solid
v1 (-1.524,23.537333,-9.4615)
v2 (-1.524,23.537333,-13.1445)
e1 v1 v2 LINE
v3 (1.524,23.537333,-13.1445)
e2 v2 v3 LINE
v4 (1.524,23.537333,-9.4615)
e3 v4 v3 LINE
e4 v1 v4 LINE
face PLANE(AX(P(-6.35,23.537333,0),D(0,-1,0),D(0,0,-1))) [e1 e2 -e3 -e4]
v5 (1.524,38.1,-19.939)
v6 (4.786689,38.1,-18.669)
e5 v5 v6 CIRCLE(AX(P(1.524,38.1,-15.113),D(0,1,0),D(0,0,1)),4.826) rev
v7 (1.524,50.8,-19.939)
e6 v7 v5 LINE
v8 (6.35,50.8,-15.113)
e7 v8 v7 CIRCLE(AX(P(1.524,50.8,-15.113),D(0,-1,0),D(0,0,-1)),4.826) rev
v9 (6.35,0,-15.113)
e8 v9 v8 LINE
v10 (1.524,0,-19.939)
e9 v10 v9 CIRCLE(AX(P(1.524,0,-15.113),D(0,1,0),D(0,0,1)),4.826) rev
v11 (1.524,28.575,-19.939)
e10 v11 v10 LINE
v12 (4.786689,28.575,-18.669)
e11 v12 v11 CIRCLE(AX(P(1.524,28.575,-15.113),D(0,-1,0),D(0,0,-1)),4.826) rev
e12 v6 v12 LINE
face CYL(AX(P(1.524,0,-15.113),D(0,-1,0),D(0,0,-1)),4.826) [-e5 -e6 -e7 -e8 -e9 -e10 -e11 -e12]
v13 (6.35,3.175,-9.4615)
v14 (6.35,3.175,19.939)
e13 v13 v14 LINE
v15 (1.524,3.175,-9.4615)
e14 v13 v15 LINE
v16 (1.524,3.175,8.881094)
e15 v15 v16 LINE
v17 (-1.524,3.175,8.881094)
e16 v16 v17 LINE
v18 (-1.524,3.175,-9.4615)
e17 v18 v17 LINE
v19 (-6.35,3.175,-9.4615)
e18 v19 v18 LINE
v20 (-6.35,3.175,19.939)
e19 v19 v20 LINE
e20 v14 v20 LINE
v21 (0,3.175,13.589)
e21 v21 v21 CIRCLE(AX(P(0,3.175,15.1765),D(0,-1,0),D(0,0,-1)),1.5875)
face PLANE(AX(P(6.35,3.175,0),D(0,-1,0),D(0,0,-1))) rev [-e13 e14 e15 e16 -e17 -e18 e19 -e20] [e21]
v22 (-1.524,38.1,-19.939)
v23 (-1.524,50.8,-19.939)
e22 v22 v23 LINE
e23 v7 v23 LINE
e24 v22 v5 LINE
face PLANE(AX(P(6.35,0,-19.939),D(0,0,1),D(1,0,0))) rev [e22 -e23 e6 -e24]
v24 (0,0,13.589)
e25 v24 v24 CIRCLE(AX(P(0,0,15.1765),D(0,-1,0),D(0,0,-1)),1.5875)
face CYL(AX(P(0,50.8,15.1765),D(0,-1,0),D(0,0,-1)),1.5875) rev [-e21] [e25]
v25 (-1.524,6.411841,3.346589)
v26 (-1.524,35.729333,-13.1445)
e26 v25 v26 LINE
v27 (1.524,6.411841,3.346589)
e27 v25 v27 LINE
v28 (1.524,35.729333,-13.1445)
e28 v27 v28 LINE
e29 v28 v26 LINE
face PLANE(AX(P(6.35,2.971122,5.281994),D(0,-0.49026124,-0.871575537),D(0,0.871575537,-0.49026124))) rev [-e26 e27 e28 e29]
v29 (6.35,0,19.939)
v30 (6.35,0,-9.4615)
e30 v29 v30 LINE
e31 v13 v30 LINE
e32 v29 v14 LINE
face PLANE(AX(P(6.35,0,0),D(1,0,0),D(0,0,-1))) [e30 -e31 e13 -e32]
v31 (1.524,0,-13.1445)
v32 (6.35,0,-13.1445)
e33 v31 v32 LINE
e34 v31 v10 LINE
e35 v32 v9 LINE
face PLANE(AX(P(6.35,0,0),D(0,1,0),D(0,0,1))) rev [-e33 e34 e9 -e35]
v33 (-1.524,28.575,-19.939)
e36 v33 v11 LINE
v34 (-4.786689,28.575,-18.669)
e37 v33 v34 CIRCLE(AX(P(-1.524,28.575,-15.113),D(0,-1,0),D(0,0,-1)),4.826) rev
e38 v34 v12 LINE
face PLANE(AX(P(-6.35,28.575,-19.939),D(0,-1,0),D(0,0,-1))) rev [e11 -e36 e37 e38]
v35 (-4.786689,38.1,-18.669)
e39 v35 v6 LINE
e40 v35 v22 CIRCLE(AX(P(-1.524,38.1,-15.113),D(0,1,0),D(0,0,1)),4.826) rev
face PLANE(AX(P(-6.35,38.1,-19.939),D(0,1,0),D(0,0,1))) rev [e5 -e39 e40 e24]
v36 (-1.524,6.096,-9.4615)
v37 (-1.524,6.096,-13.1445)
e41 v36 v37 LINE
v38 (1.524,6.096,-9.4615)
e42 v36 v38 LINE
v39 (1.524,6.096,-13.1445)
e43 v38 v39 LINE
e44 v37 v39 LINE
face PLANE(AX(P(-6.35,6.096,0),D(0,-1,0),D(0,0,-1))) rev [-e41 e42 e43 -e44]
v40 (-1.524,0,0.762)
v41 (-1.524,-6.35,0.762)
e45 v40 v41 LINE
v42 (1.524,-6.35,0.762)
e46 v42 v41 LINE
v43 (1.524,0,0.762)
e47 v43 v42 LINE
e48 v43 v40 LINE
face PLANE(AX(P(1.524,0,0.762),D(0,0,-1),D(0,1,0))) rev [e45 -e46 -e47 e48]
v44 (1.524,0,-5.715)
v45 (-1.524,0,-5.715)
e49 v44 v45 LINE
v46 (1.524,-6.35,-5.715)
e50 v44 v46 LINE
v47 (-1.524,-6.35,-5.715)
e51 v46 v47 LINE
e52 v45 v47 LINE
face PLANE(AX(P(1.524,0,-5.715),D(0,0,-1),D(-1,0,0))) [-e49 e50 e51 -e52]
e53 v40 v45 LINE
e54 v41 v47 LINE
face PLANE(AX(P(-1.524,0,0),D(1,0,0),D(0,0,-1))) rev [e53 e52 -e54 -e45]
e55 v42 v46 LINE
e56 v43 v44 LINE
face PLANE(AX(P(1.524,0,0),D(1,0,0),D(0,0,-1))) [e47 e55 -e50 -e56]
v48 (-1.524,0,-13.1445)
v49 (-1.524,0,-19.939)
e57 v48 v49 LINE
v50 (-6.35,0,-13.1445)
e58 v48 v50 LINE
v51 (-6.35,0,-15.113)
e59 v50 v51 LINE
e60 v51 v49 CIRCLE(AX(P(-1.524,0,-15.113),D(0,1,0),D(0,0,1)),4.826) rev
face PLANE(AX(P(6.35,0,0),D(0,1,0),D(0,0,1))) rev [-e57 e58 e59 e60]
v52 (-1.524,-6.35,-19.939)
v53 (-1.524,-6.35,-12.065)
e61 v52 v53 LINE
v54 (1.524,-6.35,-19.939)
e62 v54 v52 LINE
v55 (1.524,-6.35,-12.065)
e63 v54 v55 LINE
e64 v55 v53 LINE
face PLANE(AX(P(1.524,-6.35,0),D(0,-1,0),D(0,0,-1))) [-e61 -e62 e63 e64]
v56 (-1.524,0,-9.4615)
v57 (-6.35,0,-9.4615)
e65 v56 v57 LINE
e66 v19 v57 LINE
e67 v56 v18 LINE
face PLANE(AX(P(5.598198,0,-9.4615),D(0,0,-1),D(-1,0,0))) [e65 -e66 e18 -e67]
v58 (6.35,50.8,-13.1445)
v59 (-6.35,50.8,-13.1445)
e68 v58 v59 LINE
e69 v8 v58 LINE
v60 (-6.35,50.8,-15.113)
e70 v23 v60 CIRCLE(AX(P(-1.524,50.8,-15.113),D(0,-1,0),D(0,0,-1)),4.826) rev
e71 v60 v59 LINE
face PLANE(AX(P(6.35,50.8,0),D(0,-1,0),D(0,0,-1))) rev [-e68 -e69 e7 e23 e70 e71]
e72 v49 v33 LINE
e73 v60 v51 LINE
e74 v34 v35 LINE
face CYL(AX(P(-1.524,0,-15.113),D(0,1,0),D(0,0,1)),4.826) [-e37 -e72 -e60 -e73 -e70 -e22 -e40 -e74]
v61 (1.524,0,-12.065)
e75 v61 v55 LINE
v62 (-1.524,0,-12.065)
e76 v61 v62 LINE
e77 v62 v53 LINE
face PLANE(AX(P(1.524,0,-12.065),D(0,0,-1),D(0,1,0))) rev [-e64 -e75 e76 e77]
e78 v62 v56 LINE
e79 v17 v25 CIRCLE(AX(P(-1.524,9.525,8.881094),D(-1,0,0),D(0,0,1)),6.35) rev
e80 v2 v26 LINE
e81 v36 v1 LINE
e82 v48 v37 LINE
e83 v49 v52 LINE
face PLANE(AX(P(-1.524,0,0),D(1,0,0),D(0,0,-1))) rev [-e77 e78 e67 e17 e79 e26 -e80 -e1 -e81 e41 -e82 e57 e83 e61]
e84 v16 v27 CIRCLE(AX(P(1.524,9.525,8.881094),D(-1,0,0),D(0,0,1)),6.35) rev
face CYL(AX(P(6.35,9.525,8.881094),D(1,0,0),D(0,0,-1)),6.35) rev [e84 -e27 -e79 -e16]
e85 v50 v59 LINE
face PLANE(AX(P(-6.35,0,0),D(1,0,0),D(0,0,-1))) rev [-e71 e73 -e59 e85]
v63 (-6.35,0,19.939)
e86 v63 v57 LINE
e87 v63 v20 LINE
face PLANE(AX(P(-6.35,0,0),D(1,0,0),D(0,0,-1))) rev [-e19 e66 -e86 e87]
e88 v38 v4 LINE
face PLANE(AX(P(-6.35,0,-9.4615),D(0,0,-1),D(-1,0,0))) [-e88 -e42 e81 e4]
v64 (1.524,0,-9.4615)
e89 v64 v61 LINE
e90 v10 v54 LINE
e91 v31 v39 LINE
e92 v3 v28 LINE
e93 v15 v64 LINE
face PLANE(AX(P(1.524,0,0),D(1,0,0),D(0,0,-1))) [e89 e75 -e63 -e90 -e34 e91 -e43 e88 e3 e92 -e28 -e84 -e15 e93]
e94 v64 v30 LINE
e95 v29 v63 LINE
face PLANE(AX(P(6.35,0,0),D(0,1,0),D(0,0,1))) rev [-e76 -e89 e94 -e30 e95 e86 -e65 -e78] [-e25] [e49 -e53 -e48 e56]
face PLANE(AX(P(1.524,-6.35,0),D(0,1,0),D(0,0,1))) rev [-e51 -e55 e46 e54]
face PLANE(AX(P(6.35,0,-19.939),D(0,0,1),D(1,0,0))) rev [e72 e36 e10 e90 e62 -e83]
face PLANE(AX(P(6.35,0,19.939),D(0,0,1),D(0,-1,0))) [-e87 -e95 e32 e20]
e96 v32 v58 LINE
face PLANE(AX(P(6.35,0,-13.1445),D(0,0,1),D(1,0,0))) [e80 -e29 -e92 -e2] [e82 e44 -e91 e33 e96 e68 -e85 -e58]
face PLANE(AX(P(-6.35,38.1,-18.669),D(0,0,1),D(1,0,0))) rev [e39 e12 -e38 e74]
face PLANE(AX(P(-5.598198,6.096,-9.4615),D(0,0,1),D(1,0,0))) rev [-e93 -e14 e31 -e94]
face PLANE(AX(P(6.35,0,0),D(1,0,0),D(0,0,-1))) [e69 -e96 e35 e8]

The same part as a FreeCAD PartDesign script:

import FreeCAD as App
import Part
import Sketcher

V = App.Vector
Q = App.Units.Quantity


def edges_at(feature, points):
    """Names of the edges that pass closest to the given points."""
    edges = feature.Shape.Edges
    near = lambda p: min(range(len(edges)), key=lambda i: edges[i].distToShape(Part.Vertex(*p))[0])
    return sorted({f"Edge{near(p) + 1}" for p in points})


def add_polygon(sketch, points):
    """Adds a closed chain of lines whose ends are joined by coincident constraints."""
    first, n = sketch.GeometryCount, len(points)
    for a, b in zip(points, points[1:] + points[:1]):
        sketch.addGeometry(Part.LineSegment(App.Vector(*a, 0), App.Vector(*b, 0)), False)
    for i in range(n):
        sketch.addConstraint(Sketcher.Constraint("Coincident", first + i, 2, first + (i + 1) % n, 1))

doc = App.newDocument("Part")
body = doc.addObject("PartDesign::Body", "Body")

# Sketch on YZ plane
sketch1 = body.newObject("Sketcher::SketchObject", "Sketch")
sketch1.AttachmentSupport = (doc.getObject("YZ_Plane"), [""])
sketch1.MapMode = "FlatFace"
add_polygon(sketch1, [(3.2, 19.9), (0, 19.9), (0, -19.9), (50.8, -19.9), (50.8, -13.1), (35.7, -13.1), (3.2, 5.2)])  # lines 0-6
sketch1.addConstraint([
    Sketcher.Constraint("Horizontal", 0),
    Sketcher.Constraint("Vertical", 1),
    Sketcher.Constraint("Horizontal", 2),
    Sketcher.Constraint("Vertical", 3),
    Sketcher.Constraint("Horizontal", 4),
    Sketcher.Constraint("Vertical", 6),
    Sketcher.Constraint("Symmetric", 0, 2, 1, 2, -1, 1),
    Sketcher.Constraint("DistanceX", 2, 1, 2, 2, Q("2 in")),
    Sketcher.Constraint("DistanceY", 1, 2, 1, 1, Q("1.57 in")),
    Sketcher.Constraint("DistanceX", 0, 2, 0, 1, Q("0.125 in")),
    Sketcher.Constraint("DistanceY", 3, 1, 3, 2, Q("0.2675 in")),
    Sketcher.Constraint("DistanceX", 4, 2, 4, 1, Q("15.070667 mm")),
    Sketcher.Constraint("DistanceY", 6, 1, 6, 2, Q("14.771687 mm")),
])
pad1 = body.newObject("PartDesign::Pad", "Pad")
pad1.Profile = sketch1
pad1.Length = Q("0.5 in")
pad1.Midplane = True

# Sketch on YZ plane
sketch2 = body.newObject("Sketcher::SketchObject", "Sketch001")
sketch2.AttachmentSupport = (doc.getObject("YZ_Plane"), [""])
sketch2.MapMode = "FlatFace"
add_polygon(sketch2, [(23.5, -9.5), (6.1, -9.5), (6.1, -13.1), (23.5, -13.1)])  # lines 0-3
sketch2.addConstraint([
    Sketcher.Constraint("Horizontal", 0),
    Sketcher.Constraint("Vertical", 1),
    Sketcher.Constraint("Horizontal", 2),
    Sketcher.Constraint("Vertical", 3),
    Sketcher.Constraint("DistanceY", 1, 2, 1, 1, Q("0.145 in")),
    Sketcher.Constraint("DistanceX", -1, 1, 0, 2, Q("0.24 in")),
    Sketcher.Constraint("DistanceY", 0, 2, -1, 1, Q("0.3725 in")),
    Sketcher.Constraint("DistanceX", 0, 2, 0, 1, Q("17.441333 mm")),
])
pocket1 = body.newObject("PartDesign::Pocket", "Pocket")
pocket1.Profile = sketch2
pocket1.Type = "ThroughAll"
pocket1.Midplane = True

# Sketch on YZ plane
sketch3 = body.newObject("Sketcher::SketchObject", "Sketch002")
sketch3.AttachmentSupport = (doc.getObject("YZ_Plane"), [""])
sketch3.MapMode = "FlatFace"
add_polygon(sketch3, [(0, -12), (-6, -12), (-6, -20), (0, -20)])  # lines 0-3
add_polygon(sketch3, [(0, 1), (-6, 1), (-6, -6), (0, -6)])  # lines 4-7
sketch3.addConstraint([
    Sketcher.Constraint("Horizontal", 0),
    Sketcher.Constraint("Vertical", 1),
    Sketcher.Constraint("Horizontal", 2),
    Sketcher.Constraint("Vertical", 3),
    Sketcher.Constraint("Horizontal", 4),
    Sketcher.Constraint("Vertical", 5),
    Sketcher.Constraint("Horizontal", 6),
    Sketcher.Constraint("Vertical", 7),
    Sketcher.Constraint("PointOnObject", 2, 2, -2),
    Sketcher.Constraint("PointOnObject", 6, 2, -2),
    Sketcher.Constraint("Vertical", 1, 2, 4, 2),
    Sketcher.Constraint("DistanceX", 0, 2, 0, 1, Q("0.25 in")),
    Sketcher.Constraint("DistanceY", 1, 2, 1, 1, Q("0.31 in")),
    Sketcher.Constraint("DistanceY", 5, 2, 5, 1, Q("0.255 in")),
    Sketcher.Constraint("DistanceY", -1, 1, 4, 2, Q("0.03 in")),
    Sketcher.Constraint("DistanceY", 0, 2, 5, 2, Q("0.25 in")),
])
pad2 = body.newObject("PartDesign::Pad", "Pad001")
pad2.Profile = sketch3
pad2.Length = Q("0.12 in")
pad2.Midplane = True

# Sketch on XZ plane
sketch4 = body.newObject("Sketcher::SketchObject", "Sketch003")
sketch4.AttachmentSupport = (doc.getObject("XZ_Plane"), [""])
sketch4.MapMode = "FlatFace"
sketch4.addGeometry(Part.Circle(V(0, 15.2, 0), V(0, 0, 1), 1.6), False)
sketch4.addConstraint([
    Sketcher.Constraint("PointOnObject", 0, 3, -2),
    Sketcher.Constraint("Diameter", 0, Q("0.125 in")),
    Sketcher.Constraint("DistanceY", -1, 1, 0, 3, Q("0.5975 in")),
])
pocket2 = body.newObject("PartDesign::Pocket", "Pocket001")
pocket2.Profile = sketch4
pocket2.Type = "ThroughAll"
doc.recompute()

fillet = body.newObject("PartDesign::Fillet", "Fillet")
fillet.Base = (pocket2, edges_at(pocket2, [(-6.35, 25.4, -19.939), (6.35, 25.4, -19.939)]))
fillet.Radius = Q("0.19 in")
doc.recompute()

fillet2 = body.newObject("PartDesign::Fillet", "Fillet001")
fillet2.Base = (fillet, edges_at(fillet, [(0, 3.175, 5.167)]))
fillet2.Radius = Q("0.25 in")

# Sketch on YZ plane
sketch5 = body.newObject("Sketcher::SketchObject", "Sketch004")
sketch5.AttachmentSupport = (doc.getObject("YZ_Plane"), [""])
sketch5.MapMode = "FlatFace"
add_polygon(sketch5, [(38.1, -18.7), (28.6, -18.7), (28.6, -19.9), (38.1, -19.9)])  # lines 0-3
sketch5.addConstraint([
    Sketcher.Constraint("Horizontal", 0),
    Sketcher.Constraint("Vertical", 1),
    Sketcher.Constraint("Horizontal", 2),
    Sketcher.Constraint("Vertical", 3),
    Sketcher.Constraint("DistanceY", 1, 2, 1, 1, Q("0.05 in")),
    Sketcher.Constraint("DistanceX", -1, 1, 2, 2, Q("1.5 in")),
    Sketcher.Constraint("DistanceX", 0, 2, 0, 1, Q("0.375 in")),
    Sketcher.Constraint("DistanceY", 0, 2, -1, 1, Q("0.735 in")),
])
pocket3 = body.newObject("PartDesign::Pocket", "Pocket002")
pocket3.Profile = sketch5
pocket3.Type = "ThroughAll"
pocket3.Midplane = True

# Sketch on XZ plane
sketch6 = body.newObject("Sketcher::SketchObject", "Sketch005")
sketch6.AttachmentSupport = (doc.getObject("XZ_Plane"), [""])
sketch6.MapMode = "FlatFace"
sketch6.AttachmentOffset = App.Placement(V(0, 0, -2 * 25.4), App.Rotation())
add_polygon(sketch6, [(-6.3, -13.1), (-6.3, 19.9), (-1.5, 19.9), (-1.5, -13.1)])  # lines 0-3
add_polygon(sketch6, [(1.5, -13.1), (1.5, 19.9), (6.3, 19.9), (6.3, -13.1)])  # lines 4-7
sketch6.addConstraint([
    Sketcher.Constraint("Vertical", 0),
    Sketcher.Constraint("Horizontal", 1),
    Sketcher.Constraint("Vertical", 2),
    Sketcher.Constraint("Horizontal", 3),
    Sketcher.Constraint("Vertical", 4),
    Sketcher.Constraint("Horizontal", 5),
    Sketcher.Constraint("Vertical", 6),
    Sketcher.Constraint("Horizontal", 7),
    Sketcher.Constraint("Symmetric", 1, 2, 4, 2, -2),
    Sketcher.Constraint("Symmetric", 3, 2, 6, 2, -2),
    Sketcher.Constraint("DistanceX", 1, 1, 1, 2, Q("0.19 in")),
    Sketcher.Constraint("DistanceX", 0, 2, 5, 2, Q("0.5 in")),
    Sketcher.Constraint("DistanceY", 0, 1, 0, 2, Q("1.3025 in")),
    Sketcher.Constraint("DistanceY", -1, 1, 0, 2, Q("0.785 in")),
])
pocket4 = body.newObject("PartDesign::Pocket", "Pocket003")
pocket4.Profile = sketch6
pocket4.Length = Q("1.875 in")
pocket4.Reversed = True

# Sketch on YZ plane
sketch7 = body.newObject("Sketcher::SketchObject", "Sketch006")
sketch7.AttachmentSupport = (doc.getObject("YZ_Plane"), [""])
sketch7.MapMode = "FlatFace"
sketch7.AttachmentOffset = App.Placement(V(0, 0, 0.25 * 25.4), App.Rotation())
add_polygon(sketch7, [(6.1, -9.5), (0, -9.5), (0, -13.1), (6.1, -13.1)])  # lines 0-3
sketch7.addConstraint([
    Sketcher.Constraint("Horizontal", 0),
    Sketcher.Constraint("Vertical", 1),
    Sketcher.Constraint("Horizontal", 2),
    Sketcher.Constraint("Vertical", 3),
    Sketcher.Constraint("PointOnObject", 0, 2, -2),
    Sketcher.Constraint("DistanceX", 0, 2, 0, 1, Q("0.24 in")),
    Sketcher.Constraint("DistanceY", 1, 2, 1, 1, Q("0.145 in")),
    Sketcher.Constraint("DistanceY", 0, 2, -1, 1, Q("0.3725 in")),
])
pocket5 = body.newObject("PartDesign::Pocket", "Pocket004")
pocket5.Profile = sketch7
pocket5.Length = Q("0.19 in")

# Sketch on YZ plane
sketch8 = body.newObject("Sketcher::SketchObject", "Sketch007")
sketch8.AttachmentSupport = (doc.getObject("YZ_Plane"), [""])
sketch8.MapMode = "FlatFace"
sketch8.AttachmentOffset = App.Placement(V(0, 0, -0.25 * 25.4), App.Rotation())
add_polygon(sketch8, [(6.1, -9.5), (0, -9.5), (0, -13.1), (6.1, -13.1)])  # lines 0-3
sketch8.addConstraint([
    Sketcher.Constraint("Horizontal", 0),
    Sketcher.Constraint("Vertical", 1),
    Sketcher.Constraint("Horizontal", 2),
    Sketcher.Constraint("Vertical", 3),
    Sketcher.Constraint("PointOnObject", 0, 2, -2),
    Sketcher.Constraint("DistanceX", 0, 2, 0, 1, Q("0.24 in")),
    Sketcher.Constraint("DistanceY", 1, 2, 1, 1, Q("0.145 in")),
    Sketcher.Constraint("DistanceY", 0, 2, -1, 1, Q("0.3725 in")),
])
pocket6 = body.newObject("PartDesign::Pocket", "Pocket005")
pocket6.Profile = sketch8
pocket6.Length = Q("0.19 in")
pocket6.Reversed = True

doc.recompute()
